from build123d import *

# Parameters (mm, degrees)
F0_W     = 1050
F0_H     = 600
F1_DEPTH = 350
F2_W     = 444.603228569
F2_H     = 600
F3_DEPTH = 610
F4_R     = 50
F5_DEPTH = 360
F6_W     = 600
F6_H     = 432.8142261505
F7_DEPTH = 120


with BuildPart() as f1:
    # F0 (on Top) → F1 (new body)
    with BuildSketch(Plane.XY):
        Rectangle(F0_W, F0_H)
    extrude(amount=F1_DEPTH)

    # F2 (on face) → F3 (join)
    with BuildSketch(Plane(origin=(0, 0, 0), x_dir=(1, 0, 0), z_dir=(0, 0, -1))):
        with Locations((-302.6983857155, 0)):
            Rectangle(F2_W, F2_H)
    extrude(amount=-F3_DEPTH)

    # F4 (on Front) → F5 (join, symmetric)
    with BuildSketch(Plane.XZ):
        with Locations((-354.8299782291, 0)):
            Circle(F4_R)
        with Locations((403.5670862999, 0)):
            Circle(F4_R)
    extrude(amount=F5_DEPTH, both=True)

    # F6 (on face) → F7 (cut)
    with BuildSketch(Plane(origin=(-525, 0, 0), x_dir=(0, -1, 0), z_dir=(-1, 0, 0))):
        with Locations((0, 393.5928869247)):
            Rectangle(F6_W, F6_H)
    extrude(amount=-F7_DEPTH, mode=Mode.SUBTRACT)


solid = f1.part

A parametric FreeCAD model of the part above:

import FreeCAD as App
import Part
import Sketcher

V = App.Vector
Q = App.Units.Quantity

doc = App.newDocument("Part")
body = doc.addObject("PartDesign::Body", "Body")

sketch1 = doc.addObject("Sketcher::SketchObject", "Sketch")
body.addObject(sketch1)
sketch1.AttachmentSupport = (doc.XY_Plane, [""])
sketch1.MapMode = "FlatFace"
sketch1.addGeometry([
    Part.LineSegment(V(-525, 300, 0), V(-525, -300, 0)),
    Part.LineSegment(V(-525, -300, 0), V(525, -300, 0)),
    Part.LineSegment(V(525, -300, 0), V(525, 300, 0)),
    Part.LineSegment(V(525, 300, 0), V(-525, 300, 0)),
], False)
sketch1.addConstraint([
    Sketcher.Constraint("Coincident", 0, 2, 1, 1),
    Sketcher.Constraint("Coincident", 1, 2, 2, 1),
    Sketcher.Constraint("Coincident", 2, 2, 3, 1),
    Sketcher.Constraint("Coincident", 3, 2, 0, 1),
    Sketcher.Constraint("Vertical", 0),
    Sketcher.Constraint("Horizontal", 1),
    Sketcher.Constraint("Vertical", 2),
    Sketcher.Constraint("Horizontal", 3),
    Sketcher.Constraint("Symmetric", 0, 2, 2, 2, -1, 1),
    Sketcher.Constraint("DistanceX", 1, 1, 1, 2, Q("1050 mm")),
    Sketcher.Constraint("DistanceY", 0, 2, 0, 1, Q("600 mm")),
])
pad1 = doc.addObject("PartDesign::Pad", "Pad")
body.addObject(pad1)
pad1.Profile = sketch1
pad1.Length = 350

sketch2 = doc.addObject("Sketcher::SketchObject", "Sketch001")
body.addObject(sketch2)
sketch2.AttachmentSupport = (doc.XY_Plane, [""])
sketch2.MapMode = "FlatFace"
sketch2.addGeometry([
    Part.LineSegment(V(-525, -300, 0), V(-525, 300, 0)),
    Part.LineSegment(V(-525, 300, 0), V(-80, 300, 0)),
    Part.LineSegment(V(-80, 300, 0), V(-80, -300, 0)),
    Part.LineSegment(V(-80, -300, 0), V(-525, -300, 0)),
], False)
sketch2.addConstraint([
    Sketcher.Constraint("Coincident", 0, 2, 1, 1),
    Sketcher.Constraint("Coincident", 1, 2, 2, 1),
    Sketcher.Constraint("Coincident", 2, 2, 3, 1),
    Sketcher.Constraint("Coincident", 3, 2, 0, 1),
    Sketcher.Constraint("Vertical", 0),
    Sketcher.Constraint("Horizontal", 1),
    Sketcher.Constraint("Vertical", 2),
    Sketcher.Constraint("Horizontal", 3),
    Sketcher.Constraint("DistanceY", 0, 1, 0, 2, Q("600 mm")),
    Sketcher.Constraint("DistanceX", 0, 2, -1, 1, Q("525 mm")),
    Sketcher.Constraint("DistanceY", -1, 1, 0, 2, Q("300 mm")),
    Sketcher.Constraint("DistanceX", 1, 1, 1, 2, Q("444.603229 mm")),
])
pad2 = doc.addObject("PartDesign::Pad", "Pad001")
body.addObject(pad2)
pad2.Profile = sketch2
pad2.Length = 610

sketch3 = doc.addObject("Sketcher::SketchObject", "Sketch002")
body.addObject(sketch3)
sketch3.AttachmentSupport = (doc.XZ_Plane, [""])
sketch3.MapMode = "FlatFace"
sketch3.addGeometry([
    Part.Circle(V(-355, 0, 0), V(0, 0, 1), 50),
    Part.Circle(V(404, 0, 0), V(0, 0, 1), 50),
], False)
sketch3.addConstraint([
    Sketcher.Constraint("Equal", 0, 1),
    Sketcher.Constraint("PointOnObject", 0, 3, -1),
    Sketcher.Constraint("PointOnObject", 1, 3, -1),
    Sketcher.Constraint("Diameter", 0, Q("100 mm")),
    Sketcher.Constraint("DistanceX", 0, 3, -1, 1, Q("354.829978 mm")),
    Sketcher.Constraint("DistanceX", -1, 1, 1, 3, Q("403.567086 mm")),
])
pad3 = doc.addObject("PartDesign::Pad", "Pad002")
body.addObject(pad3)
pad3.Profile = sketch3
pad3.Length = 720
pad3.Midplane = True

sketch4 = doc.addObject("Sketcher::SketchObject", "Sketch003")
body.addObject(sketch4)
sketch4.AttachmentSupport = (doc.YZ_Plane, [""])
sketch4.MapMode = "FlatFace"
sketch4.AttachmentOffset = App.Placement(V(0, 0, -525), App.Rotation())
sketch4.addGeometry([
    Part.LineSegment(V(300, 610, 0), V(300, 177, 0)),
    Part.LineSegment(V(300, 177, 0), V(-300, 177, 0)),
    Part.LineSegment(V(-300, 177, 0), V(-300, 610, 0)),
    Part.LineSegment(V(-300, 610, 0), V(300, 610, 0)),
], False)
sketch4.addConstraint([
    Sketcher.Constraint("Coincident", 0, 2, 1, 1),
    Sketcher.Constraint("Coincident", 1, 2, 2, 1),
    Sketcher.Constraint("Coincident", 2, 2, 3, 1),
    Sketcher.Constraint("Coincident", 3, 2, 0, 1),
    Sketcher.Constraint("Vertical", 0),
    Sketcher.Constraint("Horizontal", 1),
    Sketcher.Constraint("Vertical", 2),
    Sketcher.Constraint("Horizontal", 3),
    Sketcher.Constraint("DistanceX", 1, 2, 1, 1, Q("600 mm")),
    Sketcher.Constraint("DistanceX", -1, 1, 0, 2, Q("300 mm")),
    Sketcher.Constraint("DistanceY", -1, 1, 2, 2, Q("610 mm")),
    Sketcher.Constraint("DistanceY", 0, 2, 0, 1, Q("432.814226 mm")),
])
pocket1 = doc.addObject("PartDesign::Pocket", "Pocket")
body.addObject(pocket1)
pocket1.Profile = sketch4
pocket1.Length = 120
pocket1.Reversed = True

doc.recompute()
